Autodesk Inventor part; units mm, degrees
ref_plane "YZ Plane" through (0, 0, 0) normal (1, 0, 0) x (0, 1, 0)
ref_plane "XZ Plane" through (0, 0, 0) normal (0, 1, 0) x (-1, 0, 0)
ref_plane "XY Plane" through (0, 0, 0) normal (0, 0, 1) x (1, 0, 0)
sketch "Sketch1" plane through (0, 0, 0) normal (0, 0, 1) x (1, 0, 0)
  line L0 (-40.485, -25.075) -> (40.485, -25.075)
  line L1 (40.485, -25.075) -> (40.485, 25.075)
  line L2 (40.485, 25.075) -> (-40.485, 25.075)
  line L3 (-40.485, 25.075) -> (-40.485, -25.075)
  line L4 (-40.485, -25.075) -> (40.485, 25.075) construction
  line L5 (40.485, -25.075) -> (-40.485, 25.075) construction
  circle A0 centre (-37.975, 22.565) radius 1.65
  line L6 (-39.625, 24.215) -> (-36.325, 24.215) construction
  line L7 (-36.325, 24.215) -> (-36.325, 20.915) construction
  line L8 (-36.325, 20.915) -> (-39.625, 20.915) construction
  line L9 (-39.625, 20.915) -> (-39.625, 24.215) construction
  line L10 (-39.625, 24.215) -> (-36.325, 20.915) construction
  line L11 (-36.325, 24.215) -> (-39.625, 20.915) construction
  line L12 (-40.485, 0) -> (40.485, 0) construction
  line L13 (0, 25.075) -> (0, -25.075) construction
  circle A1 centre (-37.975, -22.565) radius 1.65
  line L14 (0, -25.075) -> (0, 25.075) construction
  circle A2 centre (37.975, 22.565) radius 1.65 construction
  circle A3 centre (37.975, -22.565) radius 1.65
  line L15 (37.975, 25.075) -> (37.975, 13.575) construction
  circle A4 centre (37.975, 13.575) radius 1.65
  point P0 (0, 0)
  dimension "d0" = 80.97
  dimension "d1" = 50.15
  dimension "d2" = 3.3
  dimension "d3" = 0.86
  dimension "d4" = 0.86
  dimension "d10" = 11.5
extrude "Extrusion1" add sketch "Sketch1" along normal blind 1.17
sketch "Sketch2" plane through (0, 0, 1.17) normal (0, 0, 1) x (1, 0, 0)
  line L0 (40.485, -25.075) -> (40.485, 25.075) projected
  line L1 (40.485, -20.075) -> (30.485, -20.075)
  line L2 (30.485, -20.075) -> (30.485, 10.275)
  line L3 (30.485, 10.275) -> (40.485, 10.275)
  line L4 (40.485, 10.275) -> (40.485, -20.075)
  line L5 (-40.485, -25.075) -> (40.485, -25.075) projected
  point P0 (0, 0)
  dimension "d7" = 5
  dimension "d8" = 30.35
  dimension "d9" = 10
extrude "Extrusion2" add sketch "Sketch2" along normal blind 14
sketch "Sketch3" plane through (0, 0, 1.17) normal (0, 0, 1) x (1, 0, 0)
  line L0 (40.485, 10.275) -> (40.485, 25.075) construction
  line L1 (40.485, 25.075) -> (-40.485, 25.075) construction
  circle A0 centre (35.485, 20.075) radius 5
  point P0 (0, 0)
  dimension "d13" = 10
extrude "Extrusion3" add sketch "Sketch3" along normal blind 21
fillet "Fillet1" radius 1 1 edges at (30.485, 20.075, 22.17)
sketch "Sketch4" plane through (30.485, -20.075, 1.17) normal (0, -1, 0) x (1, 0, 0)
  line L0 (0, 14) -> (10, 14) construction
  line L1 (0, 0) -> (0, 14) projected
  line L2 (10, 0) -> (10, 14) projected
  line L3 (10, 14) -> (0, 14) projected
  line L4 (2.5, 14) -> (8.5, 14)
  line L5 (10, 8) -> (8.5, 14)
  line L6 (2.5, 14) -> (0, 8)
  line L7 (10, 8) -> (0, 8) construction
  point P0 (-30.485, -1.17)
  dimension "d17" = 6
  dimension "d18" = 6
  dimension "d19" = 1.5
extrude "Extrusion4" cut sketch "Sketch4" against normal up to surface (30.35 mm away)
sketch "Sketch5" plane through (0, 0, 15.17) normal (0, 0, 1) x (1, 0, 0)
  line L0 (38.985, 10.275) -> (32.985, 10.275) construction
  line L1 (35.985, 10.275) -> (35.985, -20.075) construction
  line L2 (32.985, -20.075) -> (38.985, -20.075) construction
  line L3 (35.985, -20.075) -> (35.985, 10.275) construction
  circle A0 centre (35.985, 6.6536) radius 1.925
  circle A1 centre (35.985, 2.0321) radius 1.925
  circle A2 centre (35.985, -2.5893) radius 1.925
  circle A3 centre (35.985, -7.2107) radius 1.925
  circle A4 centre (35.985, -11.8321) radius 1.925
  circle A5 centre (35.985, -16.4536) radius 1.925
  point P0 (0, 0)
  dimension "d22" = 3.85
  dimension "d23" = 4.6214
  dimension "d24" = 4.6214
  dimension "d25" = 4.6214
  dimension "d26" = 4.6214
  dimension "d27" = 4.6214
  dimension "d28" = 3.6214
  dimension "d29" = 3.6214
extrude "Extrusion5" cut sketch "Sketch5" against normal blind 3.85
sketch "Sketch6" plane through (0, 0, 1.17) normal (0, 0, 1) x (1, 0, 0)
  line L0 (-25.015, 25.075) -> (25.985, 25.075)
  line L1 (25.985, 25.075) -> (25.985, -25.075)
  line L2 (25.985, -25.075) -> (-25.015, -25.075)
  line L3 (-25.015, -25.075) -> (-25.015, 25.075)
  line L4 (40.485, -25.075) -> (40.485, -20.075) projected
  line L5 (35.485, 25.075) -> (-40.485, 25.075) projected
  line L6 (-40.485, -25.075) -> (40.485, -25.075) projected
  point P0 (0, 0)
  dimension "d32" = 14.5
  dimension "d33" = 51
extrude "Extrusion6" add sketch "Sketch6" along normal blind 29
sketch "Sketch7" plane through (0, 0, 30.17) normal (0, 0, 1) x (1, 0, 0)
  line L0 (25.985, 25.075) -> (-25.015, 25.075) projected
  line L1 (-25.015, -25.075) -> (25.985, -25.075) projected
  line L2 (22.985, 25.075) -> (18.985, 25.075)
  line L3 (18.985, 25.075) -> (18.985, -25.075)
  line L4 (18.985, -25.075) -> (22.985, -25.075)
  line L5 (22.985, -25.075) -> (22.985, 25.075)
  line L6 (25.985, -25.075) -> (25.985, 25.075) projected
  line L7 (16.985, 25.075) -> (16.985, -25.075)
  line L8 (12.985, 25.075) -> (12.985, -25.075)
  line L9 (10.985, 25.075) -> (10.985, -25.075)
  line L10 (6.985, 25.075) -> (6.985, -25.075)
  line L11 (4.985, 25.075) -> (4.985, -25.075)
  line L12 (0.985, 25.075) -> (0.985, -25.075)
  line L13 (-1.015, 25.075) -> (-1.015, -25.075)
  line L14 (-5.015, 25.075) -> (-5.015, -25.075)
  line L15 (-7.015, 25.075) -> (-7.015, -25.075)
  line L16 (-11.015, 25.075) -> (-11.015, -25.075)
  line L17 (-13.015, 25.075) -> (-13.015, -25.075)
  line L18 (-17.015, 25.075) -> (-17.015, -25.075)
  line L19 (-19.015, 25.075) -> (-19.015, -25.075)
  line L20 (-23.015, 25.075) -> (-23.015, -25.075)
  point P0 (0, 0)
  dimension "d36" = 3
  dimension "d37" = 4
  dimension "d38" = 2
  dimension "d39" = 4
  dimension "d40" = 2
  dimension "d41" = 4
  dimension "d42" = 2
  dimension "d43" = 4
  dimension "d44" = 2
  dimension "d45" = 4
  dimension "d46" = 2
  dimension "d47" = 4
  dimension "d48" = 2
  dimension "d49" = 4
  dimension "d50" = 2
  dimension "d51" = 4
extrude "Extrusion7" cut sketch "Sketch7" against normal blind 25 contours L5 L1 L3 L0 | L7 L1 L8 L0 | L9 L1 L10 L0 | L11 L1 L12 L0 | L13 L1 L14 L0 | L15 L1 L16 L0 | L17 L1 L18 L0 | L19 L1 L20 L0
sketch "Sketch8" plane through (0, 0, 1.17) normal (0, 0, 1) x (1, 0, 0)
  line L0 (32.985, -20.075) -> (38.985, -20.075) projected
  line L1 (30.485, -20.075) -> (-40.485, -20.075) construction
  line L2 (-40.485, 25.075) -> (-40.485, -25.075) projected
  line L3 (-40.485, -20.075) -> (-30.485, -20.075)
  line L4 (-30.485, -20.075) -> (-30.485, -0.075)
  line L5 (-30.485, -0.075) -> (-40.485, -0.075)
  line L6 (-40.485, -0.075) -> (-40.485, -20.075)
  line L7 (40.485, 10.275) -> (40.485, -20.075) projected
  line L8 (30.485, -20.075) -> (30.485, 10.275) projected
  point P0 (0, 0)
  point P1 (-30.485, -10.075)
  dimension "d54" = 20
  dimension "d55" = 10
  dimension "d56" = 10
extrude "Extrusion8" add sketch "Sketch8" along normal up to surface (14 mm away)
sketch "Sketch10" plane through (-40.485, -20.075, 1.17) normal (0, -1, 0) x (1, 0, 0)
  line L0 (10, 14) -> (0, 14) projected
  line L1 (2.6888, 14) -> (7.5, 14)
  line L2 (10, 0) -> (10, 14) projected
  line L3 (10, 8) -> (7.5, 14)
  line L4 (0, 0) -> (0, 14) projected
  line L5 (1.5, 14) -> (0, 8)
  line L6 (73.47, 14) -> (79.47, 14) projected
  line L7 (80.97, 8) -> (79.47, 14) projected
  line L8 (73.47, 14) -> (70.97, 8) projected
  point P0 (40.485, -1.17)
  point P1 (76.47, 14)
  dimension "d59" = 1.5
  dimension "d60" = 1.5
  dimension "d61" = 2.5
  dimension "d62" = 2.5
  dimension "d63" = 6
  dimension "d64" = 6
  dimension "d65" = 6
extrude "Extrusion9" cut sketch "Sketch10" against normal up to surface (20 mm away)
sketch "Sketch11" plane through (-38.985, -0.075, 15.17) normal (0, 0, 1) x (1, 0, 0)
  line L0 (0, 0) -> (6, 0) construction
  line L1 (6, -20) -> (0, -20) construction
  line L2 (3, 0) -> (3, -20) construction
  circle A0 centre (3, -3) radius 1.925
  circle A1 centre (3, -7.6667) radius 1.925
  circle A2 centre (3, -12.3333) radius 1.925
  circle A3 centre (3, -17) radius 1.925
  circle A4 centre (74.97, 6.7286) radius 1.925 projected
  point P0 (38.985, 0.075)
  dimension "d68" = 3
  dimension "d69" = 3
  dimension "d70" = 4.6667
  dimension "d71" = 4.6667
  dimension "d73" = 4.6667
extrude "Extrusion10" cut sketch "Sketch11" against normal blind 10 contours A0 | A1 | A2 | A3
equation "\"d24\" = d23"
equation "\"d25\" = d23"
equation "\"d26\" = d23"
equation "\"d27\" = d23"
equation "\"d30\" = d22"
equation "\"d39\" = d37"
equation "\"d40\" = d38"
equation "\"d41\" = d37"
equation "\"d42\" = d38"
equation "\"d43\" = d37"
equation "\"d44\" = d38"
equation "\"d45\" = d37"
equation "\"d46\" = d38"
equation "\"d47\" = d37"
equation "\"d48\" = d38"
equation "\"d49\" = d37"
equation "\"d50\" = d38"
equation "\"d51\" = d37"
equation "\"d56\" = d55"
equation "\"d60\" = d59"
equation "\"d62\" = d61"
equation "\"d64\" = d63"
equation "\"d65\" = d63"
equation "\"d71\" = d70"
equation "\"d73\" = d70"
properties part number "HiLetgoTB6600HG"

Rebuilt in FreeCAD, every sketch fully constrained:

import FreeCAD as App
import Part
import Sketcher
Q = App.Units.Quantity


def edges_at(feature, points):
    """Names of the edges that pass closest to the given points."""
    edges = feature.Shape.Edges
    near = lambda p: min(range(len(edges)), key=lambda i: edges[i].distToShape(Part.Vertex(*p))[0])
    return sorted({f"Edge{near(p) + 1}" for p in points})


def add_polygon(sketch, points):
    """Adds a closed chain of lines whose ends are joined by coincident constraints."""
    first, n = sketch.GeometryCount, len(points)
    for a, b in zip(points, points[1:] + points[:1]):
        sketch.addGeometry(Part.LineSegment(App.Vector(*a, 0), App.Vector(*b, 0)), False)
    for i in range(n):
        sketch.addConstraint(Sketcher.Constraint("Coincident", first + i, 2, first + (i + 1) % n, 1))

doc = App.newDocument("Part")
params = doc.addObject("Spreadsheet::Sheet", "Params")
for row, (alias, value) in enumerate([
    ("sketch1_diameter", "3.3 mm"),
    ("sketch1_width", "80.97 mm"),
    ("sketch1_height", "50.15 mm"),
    ("pad1_length", "1.17 mm"),
    ("sketch2_width", "10 mm"),
    ("sketch2_height", "30.35 mm"),
    ("pad2_length", "14 mm"),
    ("sketch3_diameter", "10 mm"),
    ("pad3_length", "21 mm"),
    ("fillet_radius", "1 mm"),
    ("sketch4_height", "6 mm"),
    ("sketch4_width", "1.5 mm"),
    ("sketch4_width2", "2.5 mm"),
    ("pocket1_length", "30.35 mm"),
    ("sketch5_diameter", "3.85 mm"),
    ("pocket2_length", "3.85 mm"),
    ("sketch6_width", "51 mm"),
    ("sketch6_height", "50.15 mm"),
    ("pad4_length", "29 mm"),
    ("sketch7_width", "4 mm"),
    ("sketch7_height", "50.15 mm"),
    ("pocket3_length", "25 mm"),
    ("sketch8_width", "10 mm"),
    ("sketch8_height", "20 mm"),
    ("pad5_length", "14 mm"),
    ("sketch9_height", "6 mm"),
    ("sketch9_width", "2.5 mm"),
    ("sketch9_width2", "1.5 mm"),
    ("pocket4_length", "20 mm"),
    ("sketch10_diameter", "3.85 mm"),
    ("pocket5_length", "10 mm"),
], start=1):
    params.set(f"A{row}", alias)
    params.set(f"B{row}", "=" + value)
    params.setAlias(f"B{row}", alias)

body = doc.addObject("PartDesign::Body", "Body")

# Sketch on XY plane
sketch1 = body.newObject("Sketcher::SketchObject", "Sketch")
sketch1.AttachmentSupport = (doc.getObject("XY_Plane"), [""])
sketch1.MapMode = "FlatFace"
add_polygon(sketch1, [(-40.5, 25.1), (-40.5, -25.1), (40.5, -25.1), (40.5, 25.1)])  # lines 0-3
sketch1.addGeometry(Part.Circle(App.Vector(-38, -22.6, 0), App.Vector(0, 0, 1), 1.6), False)  # 4
sketch1.addGeometry(Part.Circle(App.Vector(38, -22.6, 0), App.Vector(0, 0, 1), 1.6), False)  # 5
sketch1.addGeometry(Part.Circle(App.Vector(-38, 22.6, 0), App.Vector(0, 0, 1), 1.6), False)  # 6
sketch1.addGeometry(Part.Circle(App.Vector(38, 13.6, 0), App.Vector(0, 0, 1), 1.6), False)  # 7
sketch1.addConstraint(Sketcher.Constraint("Vertical", 0))
sketch1.addConstraint(Sketcher.Constraint("Horizontal", 1))
sketch1.addConstraint(Sketcher.Constraint("Vertical", 2))
sketch1.addConstraint(Sketcher.Constraint("Horizontal", 3))
sketch1.addConstraint(Sketcher.Constraint("Equal", 4, 5))
sketch1.addConstraint(Sketcher.Constraint("Equal", 5, 6))
sketch1.addConstraint(Sketcher.Constraint("Equal", 6, 7))
sketch1.addConstraint(Sketcher.Constraint("Symmetric", 5, 3, 6, 3, -1, 1))
sketch1.addConstraint(Sketcher.Constraint("Symmetric", 0, 2, 2, 2, -1, 1))
sketch1.addConstraint(Sketcher.Constraint("Symmetric", 4, 3, 5, 3, -2))
sketch1.addConstraint(Sketcher.Constraint("Vertical", 5, 3, 7, 3))
sketch1.addConstraint(Sketcher.Constraint("Diameter", 4, Q("3.3 mm")))
sketch1.addConstraint(Sketcher.Constraint("DistanceX", 1, 1, 1, 2, Q("80.97 mm")))
sketch1.addConstraint(Sketcher.Constraint("DistanceY", 0, 2, 0, 1, Q("50.15 mm")))
sketch1.addConstraint(Sketcher.Constraint("DistanceY", 7, 3, 2, 2, Q("11.5 mm")))
sketch1.addConstraint(Sketcher.Constraint("DistanceX", 4, 3, 5, 3, Q("75.95 mm")))
sketch1.addConstraint(Sketcher.Constraint("DistanceY", 4, 3, 6, 3, Q("45.13 mm")))
sketch1.setExpression("Constraints[15]", "Params.sketch1_diameter")
sketch1.setExpression("Constraints[16]", "Params.sketch1_width")
sketch1.setExpression("Constraints[17]", "Params.sketch1_height")
pad1 = body.newObject("PartDesign::Pad", "Pad")
pad1.Profile = sketch1
pad1.setExpression("Length", "Params.pad1_length")

# Sketch on XY plane
sketch2 = body.newObject("Sketcher::SketchObject", "Sketch001")
sketch2.AttachmentSupport = (doc.getObject("XY_Plane"), [""])
sketch2.MapMode = "FlatFace"
sketch2.AttachmentOffset = App.Placement(App.Vector(0, 0, 1.17), App.Rotation())
add_polygon(sketch2, [(30, -20), (40, -20), (40, 10), (30, 10)])  # lines 0-3
sketch2.addConstraint(Sketcher.Constraint("Horizontal", 0))
sketch2.addConstraint(Sketcher.Constraint("Vertical", 1))
sketch2.addConstraint(Sketcher.Constraint("Horizontal", 2))
sketch2.addConstraint(Sketcher.Constraint("Vertical", 3))
sketch2.addConstraint(Sketcher.Constraint("DistanceX", 0, 1, 0, 2, Q("10 mm")))
sketch2.addConstraint(Sketcher.Constraint("DistanceY", 1, 1, 1, 2, Q("30.35 mm")))
sketch2.addConstraint(Sketcher.Constraint("DistanceX", -1, 1, 0, 2, Q("40.485 mm")))
sketch2.addConstraint(Sketcher.Constraint("DistanceY", 0, 2, -1, 1, Q("20.075 mm")))
sketch2.setExpression("Constraints[8]", "Params.sketch2_width")
sketch2.setExpression("Constraints[9]", "Params.sketch2_height")
pad2 = body.newObject("PartDesign::Pad", "Pad001")
pad2.Profile = sketch2
pad2.setExpression("Length", "Params.pad2_length")

# Sketch on XY plane
sketch3 = body.newObject("Sketcher::SketchObject", "Sketch002")
sketch3.AttachmentSupport = (doc.getObject("XY_Plane"), [""])
sketch3.MapMode = "FlatFace"
sketch3.AttachmentOffset = App.Placement(App.Vector(0, 0, 1.17), App.Rotation())
sketch3.addGeometry(Part.Circle(App.Vector(35, 20, 0), App.Vector(0, 0, 1), 5), False)
sketch3.addConstraint(Sketcher.Constraint("Diameter", 0, Q("10 mm")))
sketch3.addConstraint(Sketcher.Constraint("DistanceX", -1, 1, 0, 3, Q("35.485 mm")))
sketch3.addConstraint(Sketcher.Constraint("DistanceY", -1, 1, 0, 3, Q("20.075 mm")))
sketch3.setExpression("Constraints[0]", "Params.sketch3_diameter")
pad3 = body.newObject("PartDesign::Pad", "Pad002")
pad3.Profile = sketch3
pad3.setExpression("Length", "Params.pad3_length")
doc.recompute()

fillet = body.newObject("PartDesign::Fillet", "Fillet")
fillet.Base = (pad3, edges_at(pad3, [(30.485, 20.075, 22.17)]))
fillet.setExpression("Radius", "Params.fillet_radius")

# Sketch on XZ plane
sketch4 = body.newObject("Sketcher::SketchObject", "Sketch003")
sketch4.AttachmentSupport = (doc.getObject("XZ_Plane"), [""])
sketch4.MapMode = "FlatFace"
sketch4.AttachmentOffset = App.Placement(App.Vector(0, 0, 20.075), App.Rotation())
add_polygon(sketch4, [(40.5, 15.2), (39, 15.2), (40.5, 9.2)])  # lines 0-2
add_polygon(sketch4, [(30.5, 15.2), (30.5, 9.2), (33, 15.2)])  # lines 3-5
sketch4.addConstraint(Sketcher.Constraint("Horizontal", 0))
sketch4.addConstraint(Sketcher.Constraint("Vertical", 2))
sketch4.addConstraint(Sketcher.Constraint("Vertical", 3))
sketch4.addConstraint(Sketcher.Constraint("Horizontal", 5))
sketch4.addConstraint(Sketcher.Constraint("Horizontal", 1, 2, 3, 2))
sketch4.addConstraint(Sketcher.Constraint("Horizontal", 2, 2, 4, 2))
sketch4.addConstraint(Sketcher.Constraint("DistanceY", 2, 1, 2, 2, Q("6 mm")))
sketch4.addConstraint(Sketcher.Constraint("DistanceX", 0, 2, 0, 1, Q("1.5 mm")))
sketch4.addConstraint(Sketcher.Constraint("DistanceX", 4, 2, 0, 2, Q("6 mm")))
sketch4.addConstraint(Sketcher.Constraint("DistanceX", 5, 2, 5, 1, Q("2.5 mm")))
sketch4.addConstraint(Sketcher.Constraint("DistanceY", -1, 1, 0, 2, Q("15.17 mm")))
sketch4.addConstraint(Sketcher.Constraint("DistanceX", -1, 1, 0, 2, Q("38.985 mm")))
sketch4.setExpression("Constraints[12]", "Params.sketch4_height")
sketch4.setExpression("Constraints[13]", "Params.sketch4_width")
sketch4.setExpression("Constraints[15]", "Params.sketch4_width2")
pocket1 = body.newObject("PartDesign::Pocket", "Pocket")
pocket1.Profile = sketch4
pocket1.setExpression("Length", "Params.pocket1_length")

# Sketch on XY plane
sketch5 = body.newObject("Sketcher::SketchObject", "Sketch004")
sketch5.AttachmentSupport = (doc.getObject("XY_Plane"), [""])
sketch5.MapMode = "FlatFace"
sketch5.AttachmentOffset = App.Placement(App.Vector(0, 0, 15.17), App.Rotation())
sketch5.addGeometry(Part.Circle(App.Vector(36, 6.7, 0), App.Vector(0, 0, 1), 1.9), False)
sketch5.addGeometry(Part.Circle(App.Vector(36, 2, 0), App.Vector(0, 0, 1), 1.9), False)
sketch5.addGeometry(Part.Circle(App.Vector(36, -2.6, 0), App.Vector(0, 0, 1), 1.9), False)
sketch5.addGeometry(Part.Circle(App.Vector(36, -7.2, 0), App.Vector(0, 0, 1), 1.9), False)
sketch5.addGeometry(Part.Circle(App.Vector(36, -11.8, 0), App.Vector(0, 0, 1), 1.9), False)
sketch5.addGeometry(Part.Circle(App.Vector(36, -16.5, 0), App.Vector(0, 0, 1), 1.9), False)
sketch5.addConstraint(Sketcher.Constraint("Equal", 0, 1))
sketch5.addConstraint(Sketcher.Constraint("Equal", 1, 2))
sketch5.addConstraint(Sketcher.Constraint("Equal", 2, 3))
sketch5.addConstraint(Sketcher.Constraint("Equal", 3, 4))
sketch5.addConstraint(Sketcher.Constraint("Equal", 4, 5))
sketch5.addConstraint(Sketcher.Constraint("Vertical", 0, 3, 1, 3))
sketch5.addConstraint(Sketcher.Constraint("Vertical", 1, 3, 2, 3))
sketch5.addConstraint(Sketcher.Constraint("Vertical", 2, 3, 3, 3))
sketch5.addConstraint(Sketcher.Constraint("Vertical", 3, 3, 4, 3))
sketch5.addConstraint(Sketcher.Constraint("Vertical", 4, 3, 5, 3))
sketch5.addConstraint(Sketcher.Constraint("Diameter", 0, Q("3.85 mm")))
sketch5.addConstraint(Sketcher.Constraint("DistanceY", 1, 3, 0, 3, Q("4.6215 mm")))
sketch5.addConstraint(Sketcher.Constraint("DistanceY", 2, 3, 1, 3, Q("4.6214 mm")))
sketch5.addConstraint(Sketcher.Constraint("DistanceY", 3, 3, 2, 3, Q("4.6214 mm")))
sketch5.addConstraint(Sketcher.Constraint("DistanceY", 4, 3, 3, 3, Q("4.6214 mm")))
sketch5.addConstraint(Sketcher.Constraint("DistanceY", 5, 3, 4, 3, Q("4.6215 mm")))
sketch5.addConstraint(Sketcher.Constraint("DistanceX", -1, 1, 0, 3, Q("35.985 mm")))
sketch5.addConstraint(Sketcher.Constraint("DistanceY", -1, 1, 1, 3, Q("2.032 mm")))
sketch5.setExpression("Constraints[10]", "Params.sketch5_diameter")
pocket2 = body.newObject("PartDesign::Pocket", "Pocket001")
pocket2.Profile = sketch5
pocket2.setExpression("Length", "Params.pocket2_length")

# Sketch on XY plane
sketch6 = body.newObject("Sketcher::SketchObject", "Sketch005")
sketch6.AttachmentSupport = (doc.getObject("XY_Plane"), [""])
sketch6.MapMode = "FlatFace"
sketch6.AttachmentOffset = App.Placement(App.Vector(0, 0, 1.17), App.Rotation())
add_polygon(sketch6, [(26, 25), (-25, 25), (-25, -25), (26, -25)])  # lines 0-3
sketch6.addConstraint(Sketcher.Constraint("Horizontal", 0))
sketch6.addConstraint(Sketcher.Constraint("Vertical", 1))
sketch6.addConstraint(Sketcher.Constraint("Horizontal", 2))
sketch6.addConstraint(Sketcher.Constraint("Vertical", 3))
sketch6.addConstraint(Sketcher.Constraint("DistanceX", 0, 2, 0, 1, Q("51 mm")))
sketch6.addConstraint(Sketcher.Constraint("DistanceY", 1, 2, 1, 1, Q("50.15 mm")))
sketch6.addConstraint(Sketcher.Constraint("DistanceX", 0, 2, -1, 1, Q("25.015 mm")))
sketch6.addConstraint(Sketcher.Constraint("DistanceY", -1, 1, 0, 2, Q("25.075 mm")))
sketch6.setExpression("Constraints[8]", "Params.sketch6_width")
sketch6.setExpression("Constraints[9]", "Params.sketch6_height")
pad4 = body.newObject("PartDesign::Pad", "Pad003")
pad4.Profile = sketch6
pad4.setExpression("Length", "Params.pad4_length")

# Sketch on XY plane
sketch7 = body.newObject("Sketcher::SketchObject", "Sketch006")
sketch7.AttachmentSupport = (doc.getObject("XY_Plane"), [""])
sketch7.MapMode = "FlatFace"
sketch7.AttachmentOffset = App.Placement(App.Vector(0, 0, 30.17), App.Rotation())
add_polygon(sketch7, [(23, -25.1), (23, 25.1), (19, 25.1), (19, -25.1)])  # lines 0-3
add_polygon(sketch7, [(17, -25.1), (17, 25.1), (13, 25.1), (13, -25.1)])  # lines 4-7
add_polygon(sketch7, [(11, -25.1), (11, 25.1), (7, 25.1), (7, -25.1)])  # lines 8-11
add_polygon(sketch7, [(5, -25.1), (5, 25.1), (1, 25.1), (1, -25.1)])  # lines 12-15
add_polygon(sketch7, [(-1, -25.1), (-1, 25.1), (-5, 25.1), (-5, -25.1)])  # lines 16-19
add_polygon(sketch7, [(-7, -25.1), (-7, 25.1), (-11, 25.1), (-11, -25.1)])  # lines 20-23
add_polygon(sketch7, [(-13, -25.1), (-13, 25.1), (-17, 25.1), (-17, -25.1)])  # lines 24-27
add_polygon(sketch7, [(-19, -25.1), (-19, 25.1), (-23, 25.1), (-23, -25.1)])  # lines 28-31
sketch7.addConstraint(Sketcher.Constraint("Vertical", 0))
sketch7.addConstraint(Sketcher.Constraint("Horizontal", 1))
sketch7.addConstraint(Sketcher.Constraint("Vertical", 2))
sketch7.addConstraint(Sketcher.Constraint("Horizontal", 3))
sketch7.addConstraint(Sketcher.Constraint("Vertical", 4))
sketch7.addConstraint(Sketcher.Constraint("Horizontal", 5))
sketch7.addConstraint(Sketcher.Constraint("Vertical", 6))
sketch7.addConstraint(Sketcher.Constraint("Horizontal", 7))
sketch7.addConstraint(Sketcher.Constraint("Vertical", 8))
sketch7.addConstraint(Sketcher.Constraint("Horizontal", 9))
sketch7.addConstraint(Sketcher.Constraint("Vertical", 10))
sketch7.addConstraint(Sketcher.Constraint("Horizontal", 11))
sketch7.addConstraint(Sketcher.Constraint("Vertical", 12))
sketch7.addConstraint(Sketcher.Constraint("Horizontal", 13))
sketch7.addConstraint(Sketcher.Constraint("Vertical", 14))
sketch7.addConstraint(Sketcher.Constraint("Horizontal", 15))
sketch7.addConstraint(Sketcher.Constraint("Vertical", 16))
sketch7.addConstraint(Sketcher.Constraint("Horizontal", 17))
sketch7.addConstraint(Sketcher.Constraint("Vertical", 18))
sketch7.addConstraint(Sketcher.Constraint("Horizontal", 19))
sketch7.addConstraint(Sketcher.Constraint("Vertical", 20))
sketch7.addConstraint(Sketcher.Constraint("Horizontal", 21))
sketch7.addConstraint(Sketcher.Constraint("Vertical", 22))
sketch7.addConstraint(Sketcher.Constraint("Horizontal", 23))
sketch7.addConstraint(Sketcher.Constraint("Vertical", 24))
sketch7.addConstraint(Sketcher.Constraint("Horizontal", 25))
sketch7.addConstraint(Sketcher.Constraint("Vertical", 26))
sketch7.addConstraint(Sketcher.Constraint("Horizontal", 27))
sketch7.addConstraint(Sketcher.Constraint("Vertical", 28))
sketch7.addConstraint(Sketcher.Constraint("Horizontal", 29))
sketch7.addConstraint(Sketcher.Constraint("Vertical", 30))
sketch7.addConstraint(Sketcher.Constraint("Horizontal", 31))
sketch7.addConstraint(Sketcher.Constraint("Horizontal", 1, 2, 4, 2))
sketch7.addConstraint(Sketcher.Constraint("Horizontal", 3, 2, 6, 2))
sketch7.addConstraint(Sketcher.Constraint("Horizontal", 5, 2, 8, 2))
sketch7.addConstraint(Sketcher.Constraint("Horizontal", 7, 2, 10, 2))
sketch7.addConstraint(Sketcher.Constraint("Horizontal", 9, 2, 12, 2))
sketch7.addConstraint(Sketcher.Constraint("Horizontal", 11, 2, 14, 2))
sketch7.addConstraint(Sketcher.Constraint("Horizontal", 13, 2, 16, 2))
sketch7.addConstraint(Sketcher.Constraint("Horizontal", 15, 2, 18, 2))
sketch7.addConstraint(Sketcher.Constraint("Horizontal", 17, 2, 20, 2))
sketch7.addConstraint(Sketcher.Constraint("Horizontal", 19, 2, 22, 2))
sketch7.addConstraint(Sketcher.Constraint("Horizontal", 21, 2, 24, 2))
sketch7.addConstraint(Sketcher.Constraint("Horizontal", 23, 2, 26, 2))
sketch7.addConstraint(Sketcher.Constraint("Horizontal", 25, 2, 28, 2))
sketch7.addConstraint(Sketcher.Constraint("Horizontal", 27, 2, 30, 2))
sketch7.addConstraint(Sketcher.Constraint("Equal", 3, 5))
sketch7.addConstraint(Sketcher.Constraint("Equal", 7, 9))
sketch7.addConstraint(Sketcher.Constraint("Equal", 11, 13))
sketch7.addConstraint(Sketcher.Constraint("Equal", 15, 17))
sketch7.addConstraint(Sketcher.Constraint("Equal", 19, 21))
sketch7.addConstraint(Sketcher.Constraint("Equal", 23, 25))
sketch7.addConstraint(Sketcher.Constraint("Equal", 27, 29))
sketch7.addConstraint(Sketcher.Constraint("DistanceX", 1, 2, 1, 1, Q("4 mm")))
sketch7.addConstraint(Sketcher.Constraint("DistanceX", 4, 2, 1, 2, Q("2 mm")))
sketch7.addConstraint(Sketcher.Constraint("DistanceX", 8, 2, 5, 2, Q("2 mm")))
sketch7.addConstraint(Sketcher.Constraint("DistanceX", 12, 2, 9, 2, Q("2 mm")))
sketch7.addConstraint(Sketcher.Constraint("DistanceX", 16, 2, 13, 2, Q("2 mm")))
sketch7.addConstraint(Sketcher.Constraint("DistanceX", 20, 2, 17, 2, Q("2 mm")))
sketch7.addConstraint(Sketcher.Constraint("DistanceX", 24, 2, 21, 2, Q("2 mm")))
sketch7.addConstraint(Sketcher.Constraint("DistanceX", 28, 2, 25, 2, Q("2 mm")))
sketch7.addConstraint(Sketcher.Constraint("DistanceY", 0, 1, 0, 2, Q("50.15 mm")))
sketch7.addConstraint(Sketcher.Constraint("DistanceX", -1, 1, 0, 2, Q("22.985 mm")))
sketch7.addConstraint(Sketcher.Constraint("DistanceY", -1, 1, 0, 2, Q("25.075 mm")))
sketch7.setExpression("Constraints[85]", "Params.sketch7_width")
sketch7.setExpression("Constraints[93]", "Params.sketch7_height")
pocket3 = body.newObject("PartDesign::Pocket", "Pocket002")
pocket3.Profile = sketch7
pocket3.setExpression("Length", "Params.pocket3_length")

# Sketch on XY plane
sketch8 = body.newObject("Sketcher::SketchObject", "Sketch007")
sketch8.AttachmentSupport = (doc.getObject("XY_Plane"), [""])
sketch8.MapMode = "FlatFace"
sketch8.AttachmentOffset = App.Placement(App.Vector(0, 0, 1.17), App.Rotation())
add_polygon(sketch8, [(-30, 0), (-40, 0), (-40, -20), (-30, -20)])  # lines 0-3
sketch8.addConstraint(Sketcher.Constraint("Horizontal", 0))
sketch8.addConstraint(Sketcher.Constraint("Vertical", 1))
sketch8.addConstraint(Sketcher.Constraint("Horizontal", 2))
sketch8.addConstraint(Sketcher.Constraint("Vertical", 3))
sketch8.addConstraint(Sketcher.Constraint("DistanceX", 0, 2, 0, 1, Q("10 mm")))
sketch8.addConstraint(Sketcher.Constraint("DistanceY", 1, 2, 1, 1, Q("20 mm")))
sketch8.addConstraint(Sketcher.Constraint("DistanceX", 0, 2, -1, 1, Q("40.485 mm")))
sketch8.addConstraint(Sketcher.Constraint("DistanceY", 0, 2, -1, 1, Q("0.075 mm")))
sketch8.setExpression("Constraints[8]", "Params.sketch8_width")
sketch8.setExpression("Constraints[9]", "Params.sketch8_height")
pad5 = body.newObject("PartDesign::Pad", "Pad004")
pad5.Profile = sketch8
pad5.setExpression("Length", "Params.pad5_length")

# Sketch on XZ plane
sketch9 = body.newObject("Sketcher::SketchObject", "Sketch008")
sketch9.AttachmentSupport = (doc.getObject("XZ_Plane"), [""])
sketch9.MapMode = "FlatFace"
sketch9.AttachmentOffset = App.Placement(App.Vector(0, 0, 20.075), App.Rotation())
add_polygon(sketch9, [(-30.5, 9.2), (-30.5, 15.2), (-33, 15.2)])  # lines 0-2
add_polygon(sketch9, [(-40.5, 9.2), (-39, 15.2), (-40.5, 15.2)])  # lines 3-5
sketch9.addConstraint(Sketcher.Constraint("Vertical", 0))
sketch9.addConstraint(Sketcher.Constraint("Horizontal", 1))
sketch9.addConstraint(Sketcher.Constraint("Horizontal", 4))
sketch9.addConstraint(Sketcher.Constraint("Vertical", 5))
sketch9.addConstraint(Sketcher.Constraint("Horizontal", 1, 2, 3, 2))
sketch9.addConstraint(Sketcher.Constraint("Horizontal", 2, 2, 5, 2))
sketch9.addConstraint(Sketcher.Constraint("DistanceY", 0, 1, 0, 2, Q("6 mm")))
sketch9.addConstraint(Sketcher.Constraint("DistanceX", 1, 2, 1, 1, Q("2.5 mm")))
sketch9.addConstraint(Sketcher.Constraint("DistanceX", 4, 2, 4, 1, Q("1.5 mm")))
sketch9.addConstraint(Sketcher.Constraint("DistanceX", 3, 2, 1, 2, Q("6 mm")))
sketch9.addConstraint(Sketcher.Constraint("DistanceY", -1, 1, 0, 2, Q("15.17 mm")))
sketch9.addConstraint(Sketcher.Constraint("DistanceX", 0, 2, -1, 1, Q("30.485 mm")))
sketch9.setExpression("Constraints[12]", "Params.sketch9_height")
sketch9.setExpression("Constraints[13]", "Params.sketch9_width")
sketch9.setExpression("Constraints[14]", "Params.sketch9_width2")
pocket4 = body.newObject("PartDesign::Pocket", "Pocket003")
pocket4.Profile = sketch9
pocket4.setExpression("Length", "Params.pocket4_length")

# Sketch on XY plane
sketch10 = body.newObject("Sketcher::SketchObject", "Sketch009")
sketch10.AttachmentSupport = (doc.getObject("XY_Plane"), [""])
sketch10.MapMode = "FlatFace"
sketch10.AttachmentOffset = App.Placement(App.Vector(0, 0, 15.17), App.Rotation())
sketch10.addGeometry(Part.Circle(App.Vector(-36, -3.1, 0), App.Vector(0, 0, 1), 1.9), False)
sketch10.addGeometry(Part.Circle(App.Vector(-36, -7.7, 0), App.Vector(0, 0, 1), 1.9), False)
sketch10.addGeometry(Part.Circle(App.Vector(-36, -12.4, 0), App.Vector(0, 0, 1), 1.9), False)
sketch10.addGeometry(Part.Circle(App.Vector(-36, -17.1, 0), App.Vector(0, 0, 1), 1.9), False)
sketch10.addConstraint(Sketcher.Constraint("Equal", 0, 1))
sketch10.addConstraint(Sketcher.Constraint("Equal", 1, 2))
sketch10.addConstraint(Sketcher.Constraint("Equal", 2, 3))
sketch10.addConstraint(Sketcher.Constraint("Vertical", 0, 3, 1, 3))
sketch10.addConstraint(Sketcher.Constraint("Vertical", 1, 3, 2, 3))
sketch10.addConstraint(Sketcher.Constraint("Vertical", 2, 3, 3, 3))
sketch10.addConstraint(Sketcher.Constraint("Diameter", 0, Q("3.85 mm")))
sketch10.addConstraint(Sketcher.Constraint("DistanceY", 3, 3, 0, 3, Q("14 mm")))
sketch10.addConstraint(Sketcher.Constraint("DistanceY", 1, 3, 0, 3, Q("4.6667 mm")))
sketch10.addConstraint(Sketcher.Constraint("DistanceY", 2, 3, 1, 3, Q("4.6666 mm")))
sketch10.addConstraint(Sketcher.Constraint("DistanceX", 0, 3, -1, 1, Q("35.985 mm")))
sketch10.addConstraint(Sketcher.Constraint("DistanceY", 0, 3, -1, 1, Q("3.075 mm")))
sketch10.setExpression("Constraints[6]", "Params.sketch10_diameter")
pocket5 = body.newObject("PartDesign::Pocket", "Pocket004")
pocket5.Profile = sketch10
pocket5.setExpression("Length", "Params.pocket5_length")

doc.recompute()
